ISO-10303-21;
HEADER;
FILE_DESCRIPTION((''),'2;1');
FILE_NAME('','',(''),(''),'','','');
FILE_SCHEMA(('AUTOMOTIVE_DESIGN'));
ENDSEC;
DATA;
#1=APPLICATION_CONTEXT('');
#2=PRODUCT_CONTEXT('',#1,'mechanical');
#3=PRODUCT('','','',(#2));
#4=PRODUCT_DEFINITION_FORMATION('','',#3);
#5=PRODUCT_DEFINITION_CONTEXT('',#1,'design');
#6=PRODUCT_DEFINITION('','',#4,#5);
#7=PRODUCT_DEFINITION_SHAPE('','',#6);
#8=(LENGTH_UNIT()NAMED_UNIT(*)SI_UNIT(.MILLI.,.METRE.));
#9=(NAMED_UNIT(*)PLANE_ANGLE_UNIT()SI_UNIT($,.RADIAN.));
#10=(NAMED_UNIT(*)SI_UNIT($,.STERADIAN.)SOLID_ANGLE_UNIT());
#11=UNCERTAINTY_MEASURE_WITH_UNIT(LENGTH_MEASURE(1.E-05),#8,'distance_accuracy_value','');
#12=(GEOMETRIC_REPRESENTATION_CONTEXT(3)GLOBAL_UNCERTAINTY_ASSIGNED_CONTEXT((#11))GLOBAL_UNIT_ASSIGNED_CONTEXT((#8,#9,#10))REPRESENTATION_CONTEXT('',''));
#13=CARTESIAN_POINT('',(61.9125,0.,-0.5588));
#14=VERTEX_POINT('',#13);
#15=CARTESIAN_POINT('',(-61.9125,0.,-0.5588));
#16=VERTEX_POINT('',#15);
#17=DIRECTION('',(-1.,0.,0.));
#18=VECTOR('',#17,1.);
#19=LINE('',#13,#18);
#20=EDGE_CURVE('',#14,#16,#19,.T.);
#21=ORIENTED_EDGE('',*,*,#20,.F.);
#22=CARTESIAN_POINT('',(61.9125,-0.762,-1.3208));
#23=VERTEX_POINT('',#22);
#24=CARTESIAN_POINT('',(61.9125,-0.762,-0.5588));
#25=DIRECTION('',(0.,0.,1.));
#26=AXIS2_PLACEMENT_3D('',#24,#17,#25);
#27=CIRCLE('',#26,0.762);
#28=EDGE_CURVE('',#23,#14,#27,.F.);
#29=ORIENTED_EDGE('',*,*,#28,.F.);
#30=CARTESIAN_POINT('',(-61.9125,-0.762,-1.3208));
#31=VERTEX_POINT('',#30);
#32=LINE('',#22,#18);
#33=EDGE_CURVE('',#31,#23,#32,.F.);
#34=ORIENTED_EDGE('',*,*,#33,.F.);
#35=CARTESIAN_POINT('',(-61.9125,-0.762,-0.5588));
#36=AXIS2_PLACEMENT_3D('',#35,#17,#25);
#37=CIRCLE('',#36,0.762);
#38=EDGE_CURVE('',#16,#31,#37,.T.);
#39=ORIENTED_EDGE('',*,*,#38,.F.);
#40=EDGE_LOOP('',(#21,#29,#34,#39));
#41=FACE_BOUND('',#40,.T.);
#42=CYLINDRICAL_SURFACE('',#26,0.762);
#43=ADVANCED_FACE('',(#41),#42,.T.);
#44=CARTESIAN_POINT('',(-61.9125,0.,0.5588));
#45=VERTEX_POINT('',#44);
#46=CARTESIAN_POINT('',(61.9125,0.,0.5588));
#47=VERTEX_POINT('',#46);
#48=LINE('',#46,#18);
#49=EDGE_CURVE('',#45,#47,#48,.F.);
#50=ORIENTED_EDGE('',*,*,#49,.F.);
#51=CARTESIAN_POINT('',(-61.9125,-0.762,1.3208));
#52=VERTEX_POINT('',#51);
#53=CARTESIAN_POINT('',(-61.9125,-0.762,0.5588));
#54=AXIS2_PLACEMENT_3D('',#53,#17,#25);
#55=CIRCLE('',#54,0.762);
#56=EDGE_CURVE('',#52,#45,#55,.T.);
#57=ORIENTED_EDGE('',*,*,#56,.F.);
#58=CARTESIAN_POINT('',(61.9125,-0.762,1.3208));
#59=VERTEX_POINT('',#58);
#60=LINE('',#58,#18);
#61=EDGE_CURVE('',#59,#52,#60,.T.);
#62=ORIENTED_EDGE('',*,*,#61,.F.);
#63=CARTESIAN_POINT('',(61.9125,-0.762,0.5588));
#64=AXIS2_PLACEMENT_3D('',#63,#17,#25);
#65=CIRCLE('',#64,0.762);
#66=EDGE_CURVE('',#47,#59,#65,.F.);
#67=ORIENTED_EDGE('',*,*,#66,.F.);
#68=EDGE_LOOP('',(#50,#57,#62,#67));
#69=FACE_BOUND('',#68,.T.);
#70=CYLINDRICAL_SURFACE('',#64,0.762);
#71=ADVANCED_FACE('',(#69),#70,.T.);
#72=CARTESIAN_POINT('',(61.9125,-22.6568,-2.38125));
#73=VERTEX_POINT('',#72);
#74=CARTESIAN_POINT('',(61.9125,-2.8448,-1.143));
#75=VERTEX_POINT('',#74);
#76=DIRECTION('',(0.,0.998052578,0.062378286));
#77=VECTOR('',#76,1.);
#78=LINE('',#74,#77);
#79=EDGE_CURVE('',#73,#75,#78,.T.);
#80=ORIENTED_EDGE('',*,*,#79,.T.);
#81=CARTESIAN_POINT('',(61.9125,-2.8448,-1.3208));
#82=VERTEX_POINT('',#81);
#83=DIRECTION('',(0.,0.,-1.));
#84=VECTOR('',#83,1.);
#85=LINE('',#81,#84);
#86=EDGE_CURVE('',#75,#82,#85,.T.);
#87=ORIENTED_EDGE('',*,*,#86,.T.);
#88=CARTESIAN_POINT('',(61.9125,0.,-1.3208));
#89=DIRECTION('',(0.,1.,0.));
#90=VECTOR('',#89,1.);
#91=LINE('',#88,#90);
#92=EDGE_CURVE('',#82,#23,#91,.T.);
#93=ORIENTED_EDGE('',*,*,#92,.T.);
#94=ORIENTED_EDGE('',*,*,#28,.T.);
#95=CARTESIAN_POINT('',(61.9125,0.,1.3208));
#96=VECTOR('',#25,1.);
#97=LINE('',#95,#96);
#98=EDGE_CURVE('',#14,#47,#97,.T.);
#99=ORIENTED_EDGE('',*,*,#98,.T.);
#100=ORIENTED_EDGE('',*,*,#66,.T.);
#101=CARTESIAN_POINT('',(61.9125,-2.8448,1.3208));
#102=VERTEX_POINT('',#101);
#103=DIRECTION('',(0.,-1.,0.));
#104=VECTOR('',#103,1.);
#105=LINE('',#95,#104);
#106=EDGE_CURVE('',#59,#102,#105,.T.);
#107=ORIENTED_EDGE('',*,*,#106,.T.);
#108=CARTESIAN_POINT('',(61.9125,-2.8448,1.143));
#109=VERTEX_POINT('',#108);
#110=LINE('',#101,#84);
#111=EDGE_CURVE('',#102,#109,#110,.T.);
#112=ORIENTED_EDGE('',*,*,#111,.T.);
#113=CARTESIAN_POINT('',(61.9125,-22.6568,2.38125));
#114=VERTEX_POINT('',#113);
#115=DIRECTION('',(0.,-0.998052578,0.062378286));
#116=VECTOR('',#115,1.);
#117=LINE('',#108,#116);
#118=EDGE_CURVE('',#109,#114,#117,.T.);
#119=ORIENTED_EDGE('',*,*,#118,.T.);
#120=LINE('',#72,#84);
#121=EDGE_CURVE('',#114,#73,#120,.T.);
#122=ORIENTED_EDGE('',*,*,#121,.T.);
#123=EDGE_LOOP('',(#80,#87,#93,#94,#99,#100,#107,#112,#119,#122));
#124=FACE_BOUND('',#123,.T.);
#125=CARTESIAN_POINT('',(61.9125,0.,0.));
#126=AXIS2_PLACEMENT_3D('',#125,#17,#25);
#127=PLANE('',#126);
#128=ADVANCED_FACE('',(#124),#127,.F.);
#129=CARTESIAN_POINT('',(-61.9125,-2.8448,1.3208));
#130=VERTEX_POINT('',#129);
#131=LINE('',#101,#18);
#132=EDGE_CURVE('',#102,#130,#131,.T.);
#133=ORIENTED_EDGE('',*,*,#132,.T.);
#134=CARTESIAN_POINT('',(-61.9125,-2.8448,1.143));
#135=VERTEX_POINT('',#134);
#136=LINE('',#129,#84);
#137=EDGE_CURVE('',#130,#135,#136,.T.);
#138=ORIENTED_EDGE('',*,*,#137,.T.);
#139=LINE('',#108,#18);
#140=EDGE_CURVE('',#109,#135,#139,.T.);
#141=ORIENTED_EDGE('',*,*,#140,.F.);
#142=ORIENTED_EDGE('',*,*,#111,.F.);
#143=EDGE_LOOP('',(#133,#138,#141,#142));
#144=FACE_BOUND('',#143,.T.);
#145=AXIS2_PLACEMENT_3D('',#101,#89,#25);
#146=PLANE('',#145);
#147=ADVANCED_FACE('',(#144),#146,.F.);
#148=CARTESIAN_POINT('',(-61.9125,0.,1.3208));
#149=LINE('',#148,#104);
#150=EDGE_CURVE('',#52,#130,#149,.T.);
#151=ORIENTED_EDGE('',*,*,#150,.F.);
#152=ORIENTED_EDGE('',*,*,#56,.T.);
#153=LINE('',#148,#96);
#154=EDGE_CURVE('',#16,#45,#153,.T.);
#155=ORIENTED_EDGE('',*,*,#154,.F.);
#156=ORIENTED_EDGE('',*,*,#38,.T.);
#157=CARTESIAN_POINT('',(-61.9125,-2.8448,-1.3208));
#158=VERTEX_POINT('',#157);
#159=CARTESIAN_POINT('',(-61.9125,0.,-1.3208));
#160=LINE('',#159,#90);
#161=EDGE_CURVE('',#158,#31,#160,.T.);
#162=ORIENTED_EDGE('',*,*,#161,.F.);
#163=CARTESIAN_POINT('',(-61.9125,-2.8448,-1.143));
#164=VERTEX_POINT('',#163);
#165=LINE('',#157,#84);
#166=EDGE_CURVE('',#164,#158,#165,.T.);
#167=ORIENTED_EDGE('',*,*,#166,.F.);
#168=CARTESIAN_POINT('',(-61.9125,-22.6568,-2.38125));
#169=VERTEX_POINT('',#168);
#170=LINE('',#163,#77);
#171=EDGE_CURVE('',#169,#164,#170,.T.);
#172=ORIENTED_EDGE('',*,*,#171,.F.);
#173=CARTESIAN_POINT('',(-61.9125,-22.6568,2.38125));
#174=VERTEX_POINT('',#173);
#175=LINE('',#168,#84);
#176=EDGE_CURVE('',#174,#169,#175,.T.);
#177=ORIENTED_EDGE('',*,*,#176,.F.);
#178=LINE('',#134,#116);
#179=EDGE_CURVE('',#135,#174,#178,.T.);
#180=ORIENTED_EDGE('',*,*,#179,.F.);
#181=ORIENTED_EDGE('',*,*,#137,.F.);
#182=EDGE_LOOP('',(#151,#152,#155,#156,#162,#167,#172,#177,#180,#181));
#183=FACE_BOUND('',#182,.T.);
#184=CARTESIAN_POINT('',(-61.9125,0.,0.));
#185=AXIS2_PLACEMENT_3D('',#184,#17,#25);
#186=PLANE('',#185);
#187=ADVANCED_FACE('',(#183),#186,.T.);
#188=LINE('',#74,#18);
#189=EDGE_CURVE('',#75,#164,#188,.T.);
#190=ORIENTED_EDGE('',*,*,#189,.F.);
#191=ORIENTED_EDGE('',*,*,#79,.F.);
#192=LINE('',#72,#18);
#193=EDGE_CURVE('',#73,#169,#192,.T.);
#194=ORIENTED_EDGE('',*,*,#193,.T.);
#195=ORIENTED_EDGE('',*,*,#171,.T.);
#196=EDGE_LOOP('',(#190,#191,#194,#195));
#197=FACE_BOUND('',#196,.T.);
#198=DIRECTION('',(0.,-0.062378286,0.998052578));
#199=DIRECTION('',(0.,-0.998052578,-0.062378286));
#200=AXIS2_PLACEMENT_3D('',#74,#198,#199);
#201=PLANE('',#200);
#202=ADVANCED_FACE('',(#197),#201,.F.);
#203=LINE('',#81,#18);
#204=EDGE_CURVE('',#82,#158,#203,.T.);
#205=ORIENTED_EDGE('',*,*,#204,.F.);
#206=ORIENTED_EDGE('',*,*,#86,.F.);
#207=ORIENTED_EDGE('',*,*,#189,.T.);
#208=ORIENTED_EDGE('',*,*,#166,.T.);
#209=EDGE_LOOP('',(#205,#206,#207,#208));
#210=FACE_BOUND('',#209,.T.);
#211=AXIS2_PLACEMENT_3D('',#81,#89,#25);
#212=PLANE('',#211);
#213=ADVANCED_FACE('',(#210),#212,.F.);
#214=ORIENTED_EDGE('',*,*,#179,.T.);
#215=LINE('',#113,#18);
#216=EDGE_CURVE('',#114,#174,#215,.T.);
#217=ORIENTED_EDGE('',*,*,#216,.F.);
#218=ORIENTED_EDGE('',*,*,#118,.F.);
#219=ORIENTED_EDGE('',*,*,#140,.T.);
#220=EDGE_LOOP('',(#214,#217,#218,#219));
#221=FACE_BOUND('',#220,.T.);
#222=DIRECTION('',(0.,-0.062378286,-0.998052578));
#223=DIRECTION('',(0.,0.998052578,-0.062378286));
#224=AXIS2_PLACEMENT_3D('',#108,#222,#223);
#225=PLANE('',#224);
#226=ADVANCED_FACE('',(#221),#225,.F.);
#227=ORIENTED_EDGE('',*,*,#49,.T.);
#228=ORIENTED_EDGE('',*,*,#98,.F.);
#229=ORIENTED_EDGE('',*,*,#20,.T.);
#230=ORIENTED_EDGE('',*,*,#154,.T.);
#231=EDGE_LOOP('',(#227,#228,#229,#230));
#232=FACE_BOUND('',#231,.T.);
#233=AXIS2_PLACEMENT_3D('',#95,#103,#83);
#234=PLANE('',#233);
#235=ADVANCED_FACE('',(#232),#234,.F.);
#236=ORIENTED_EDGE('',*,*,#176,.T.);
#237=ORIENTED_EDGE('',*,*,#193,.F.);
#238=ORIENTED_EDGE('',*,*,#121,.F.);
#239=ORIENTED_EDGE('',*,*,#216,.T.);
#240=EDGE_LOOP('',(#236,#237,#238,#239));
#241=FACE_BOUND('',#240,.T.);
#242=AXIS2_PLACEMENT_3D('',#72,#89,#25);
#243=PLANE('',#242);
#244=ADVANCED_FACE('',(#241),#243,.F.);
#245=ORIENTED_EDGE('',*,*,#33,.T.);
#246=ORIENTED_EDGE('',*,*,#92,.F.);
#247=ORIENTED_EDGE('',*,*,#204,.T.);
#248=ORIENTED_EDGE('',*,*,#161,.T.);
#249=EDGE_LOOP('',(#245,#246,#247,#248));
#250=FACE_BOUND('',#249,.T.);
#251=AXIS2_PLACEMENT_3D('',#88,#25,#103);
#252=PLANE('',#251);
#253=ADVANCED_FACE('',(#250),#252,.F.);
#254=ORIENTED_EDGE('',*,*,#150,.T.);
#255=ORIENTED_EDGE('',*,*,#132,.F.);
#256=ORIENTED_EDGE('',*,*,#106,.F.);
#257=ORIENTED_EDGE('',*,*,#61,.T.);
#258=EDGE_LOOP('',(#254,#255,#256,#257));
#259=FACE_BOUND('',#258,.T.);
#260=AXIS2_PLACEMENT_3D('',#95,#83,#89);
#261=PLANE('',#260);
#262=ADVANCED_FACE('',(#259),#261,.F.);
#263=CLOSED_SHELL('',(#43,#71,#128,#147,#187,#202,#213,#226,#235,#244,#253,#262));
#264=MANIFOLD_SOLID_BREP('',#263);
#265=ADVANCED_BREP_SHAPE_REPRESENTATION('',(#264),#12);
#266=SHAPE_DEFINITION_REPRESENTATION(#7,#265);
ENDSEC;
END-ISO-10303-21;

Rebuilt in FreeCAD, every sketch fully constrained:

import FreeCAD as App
import Part
import Sketcher
Q = App.Units.Quantity


def edges_at(feature, points):
    """Names of the edges that pass closest to the given points."""
    edges = feature.Shape.Edges
    near = lambda p: min(range(len(edges)), key=lambda i: edges[i].distToShape(Part.Vertex(*p))[0])
    return sorted({f"Edge{near(p) + 1}" for p in points})


def add_polygon(sketch, points):
    """Adds a closed chain of lines whose ends are joined by coincident constraints."""
    first, n = sketch.GeometryCount, len(points)
    for a, b in zip(points, points[1:] + points[:1]):
        sketch.addGeometry(Part.LineSegment(App.Vector(*a, 0), App.Vector(*b, 0)), False)
    for i in range(n):
        sketch.addConstraint(Sketcher.Constraint("Coincident", first + i, 2, first + (i + 1) % n, 1))

doc = App.newDocument("Part")
body = doc.addObject("PartDesign::Body", "Body")

# Sketch on YZ plane
sketch1 = body.newObject("Sketcher::SketchObject", "Sketch")
sketch1.AttachmentSupport = (doc.getObject("YZ_Plane"), [""])
sketch1.MapMode = "FlatFace"
add_polygon(sketch1, [(0, -1.32), (0, 1.32), (-2.84, 1.32), (-2.84, 1.14), (-22.66, 2.38), (-22.66, -2.38), (-2.84, -1.14), (-2.84, -1.32)])  # lines 0-7
sketch1.addConstraint(Sketcher.Constraint("Vertical", 0))
sketch1.addConstraint(Sketcher.Constraint("Horizontal", 1))
sketch1.addConstraint(Sketcher.Constraint("Vertical", 2))
sketch1.addConstraint(Sketcher.Constraint("Vertical", 4))
sketch1.addConstraint(Sketcher.Constraint("Vertical", 6))
sketch1.addConstraint(Sketcher.Constraint("Horizontal", 7))
sketch1.addConstraint(Sketcher.Constraint("Symmetric", 0, 2, 7, 2, -1, 1))
sketch1.addConstraint(Sketcher.Constraint("Symmetric", 2, 2, 5, 2, -1))
sketch1.addConstraint(Sketcher.Constraint("Equal", 3, 5))
sketch1.addConstraint(Sketcher.Constraint("DistanceX", 1, 2, 1, 1, Q("0.112 in")))
sketch1.addConstraint(Sketcher.Constraint("DistanceY", 0, 1, 0, 2, Q("0.104 in")))
sketch1.addConstraint(Sketcher.Constraint("DistanceY", 2, 2, 2, 1, Q("0.007 in")))
sketch1.addConstraint(Sketcher.Constraint("DistanceY", 4, 2, 4, 1, Q("0.1875 in")))
sketch1.addConstraint(Sketcher.Constraint("DistanceX", 3, 2, 1, 2, Q("0.78 in")))
pad1 = body.newObject("PartDesign::Pad", "Pad")
pad1.Profile = sketch1
pad1.Length = Q("4.875 in")
pad1.Midplane = True
doc.recompute()

fillet = body.newObject("PartDesign::Fillet", "Fillet")
fillet.Base = (pad1, edges_at(pad1, [(0, 0, 1.321), (0, 0, -1.321)]))
fillet.Radius = Q("0.03 in")

doc.recompute()
